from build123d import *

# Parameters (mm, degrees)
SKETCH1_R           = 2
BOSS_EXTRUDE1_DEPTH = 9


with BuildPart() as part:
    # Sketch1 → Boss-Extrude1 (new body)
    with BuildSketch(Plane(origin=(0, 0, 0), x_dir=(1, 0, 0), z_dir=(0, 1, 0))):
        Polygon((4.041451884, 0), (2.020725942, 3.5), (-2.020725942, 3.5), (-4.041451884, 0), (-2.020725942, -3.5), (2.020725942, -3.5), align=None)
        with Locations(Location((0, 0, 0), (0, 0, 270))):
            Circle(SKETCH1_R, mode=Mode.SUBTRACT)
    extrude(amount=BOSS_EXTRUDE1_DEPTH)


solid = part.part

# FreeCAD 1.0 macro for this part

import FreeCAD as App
import Part
import Sketcher
Q = App.Units.Quantity


def add_polygon(sketch, points):
    """Adds a closed chain of lines whose ends are joined by coincident constraints."""
    first, n = sketch.GeometryCount, len(points)
    for a, b in zip(points, points[1:] + points[:1]):
        sketch.addGeometry(Part.LineSegment(App.Vector(*a, 0), App.Vector(*b, 0)), False)
    for i in range(n):
        sketch.addConstraint(Sketcher.Constraint("Coincident", first + i, 2, first + (i + 1) % n, 1))

doc = App.newDocument("Part")
body = doc.addObject("PartDesign::Body", "Body")

# Sketch on XZ plane
sketch1 = body.newObject("Sketcher::SketchObject", "Sketch")
sketch1.AttachmentSupport = (doc.getObject("XZ_Plane"), [""])
sketch1.MapMode = "FlatFace"
add_polygon(sketch1, [(4.041452, 0), (2.020726, -3.5), (-2.020726, -3.5), (-4.041452, 0), (-2.020726, 3.5), (2.020726, 3.5)])  # lines 0-5
sketch1.addGeometry(Part.Circle(App.Vector(0, 0, 0), App.Vector(0, 0, 1), 2), False)  # 6
sketch1.addConstraint([
    Sketcher.Constraint("Horizontal", 1),
    Sketcher.Constraint("Horizontal", 4),
    Sketcher.Constraint("Coincident", 6, 3, -1, 1),
    Sketcher.Constraint("Symmetric", 0, 2, 3, 2, -1, 1),
    Sketcher.Constraint("Symmetric", 2, 2, 5, 2, -1, 1),
    Sketcher.Constraint("PointOnObject", 2, 2, -1),
    Sketcher.Constraint("Parallel", 2, 5),
    Sketcher.Constraint("Vertical", 1, 2, 3, 2),
    Sketcher.Constraint("Diameter", 6, Q("4 mm")),
    Sketcher.Constraint("Angle", 0, Q("-120 deg")),
    Sketcher.Constraint("DistanceY", 1, 2, 3, 2, Q("7 mm")),
    Sketcher.Constraint("DistanceX", 1, 2, 1, 1, Q("4.041452 mm")),
])
pad1 = body.newObject("PartDesign::Pad", "Pad")
pad1.Profile = sketch1
pad1.Length = 9
pad1.Reversed = True

doc.recompute()
